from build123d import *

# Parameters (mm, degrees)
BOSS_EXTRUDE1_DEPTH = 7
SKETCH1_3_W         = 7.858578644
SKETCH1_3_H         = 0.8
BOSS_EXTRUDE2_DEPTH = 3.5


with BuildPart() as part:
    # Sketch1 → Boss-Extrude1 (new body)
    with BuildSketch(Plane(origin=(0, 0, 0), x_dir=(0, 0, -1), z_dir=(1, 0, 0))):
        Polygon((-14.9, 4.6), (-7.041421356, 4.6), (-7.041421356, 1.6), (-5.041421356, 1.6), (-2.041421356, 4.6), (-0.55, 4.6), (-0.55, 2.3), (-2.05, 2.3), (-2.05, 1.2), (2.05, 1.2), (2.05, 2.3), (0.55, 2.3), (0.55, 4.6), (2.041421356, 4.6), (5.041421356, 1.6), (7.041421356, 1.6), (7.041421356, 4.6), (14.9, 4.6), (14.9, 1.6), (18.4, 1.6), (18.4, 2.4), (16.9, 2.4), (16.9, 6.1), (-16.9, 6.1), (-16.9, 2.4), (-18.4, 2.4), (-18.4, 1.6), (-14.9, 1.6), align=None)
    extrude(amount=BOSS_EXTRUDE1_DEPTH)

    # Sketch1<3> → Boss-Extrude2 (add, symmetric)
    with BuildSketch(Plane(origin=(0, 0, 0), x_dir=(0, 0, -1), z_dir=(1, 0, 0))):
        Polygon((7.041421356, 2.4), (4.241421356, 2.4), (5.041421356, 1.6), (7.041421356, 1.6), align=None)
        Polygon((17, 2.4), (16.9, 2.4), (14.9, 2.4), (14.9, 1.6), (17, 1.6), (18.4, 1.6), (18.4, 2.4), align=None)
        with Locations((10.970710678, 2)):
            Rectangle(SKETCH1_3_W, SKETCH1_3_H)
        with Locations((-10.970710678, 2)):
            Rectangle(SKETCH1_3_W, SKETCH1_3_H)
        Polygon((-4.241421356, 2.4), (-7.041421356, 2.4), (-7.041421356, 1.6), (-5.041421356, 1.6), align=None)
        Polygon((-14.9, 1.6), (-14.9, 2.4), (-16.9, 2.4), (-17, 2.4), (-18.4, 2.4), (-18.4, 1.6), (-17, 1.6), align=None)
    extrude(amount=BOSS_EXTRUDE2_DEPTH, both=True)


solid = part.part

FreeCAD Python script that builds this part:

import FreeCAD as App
import Part
import Sketcher


def add_polygon(sketch, points):
    """Adds a closed chain of lines whose ends are joined by coincident constraints."""
    first, n = sketch.GeometryCount, len(points)
    for a, b in zip(points, points[1:] + points[:1]):
        sketch.addGeometry(Part.LineSegment(App.Vector(*a, 0), App.Vector(*b, 0)), False)
    for i in range(n):
        sketch.addConstraint(Sketcher.Constraint("Coincident", first + i, 2, first + (i + 1) % n, 1))

doc = App.newDocument("Part")
body = doc.addObject("PartDesign::Body", "Body")

# Sketch on YZ plane
sketch1 = body.newObject("Sketcher::SketchObject", "Sketch")
sketch1.AttachmentSupport = (doc.getObject("YZ_Plane"), [""])
sketch1.MapMode = "FlatFace"
add_polygon(sketch1, [(4.6, 14.9), (4.6, 7), (1.6, 7), (1.6, 5), (4.6, 2), (4.6, 0.6), (2.3, 0.6), (2.3, 2), (1.2, 2), (1.2, -2), (2.3, -2), (2.3, -0.6), (4.6, -0.6), (4.6, -2), (1.6, -5), (1.6, -7), (4.6, -7), (4.6, -14.9), (1.6, -14.9), (1.6, -18.4), (2.4, -18.4), (2.4, -16.9), (6.1, -16.9), (6.1, 16.9), (2.4, 16.9), (2.4, 18.4), (1.6, 18.4), (1.6, 14.9)])  # lines 0-27
sketch1.addConstraint(Sketcher.Constraint("Vertical", 0))
sketch1.addConstraint(Sketcher.Constraint("Horizontal", 1))
sketch1.addConstraint(Sketcher.Constraint("Vertical", 2))
sketch1.addConstraint(Sketcher.Constraint("Vertical", 4))
sketch1.addConstraint(Sketcher.Constraint("Horizontal", 5))
sketch1.addConstraint(Sketcher.Constraint("Vertical", 6))
sketch1.addConstraint(Sketcher.Constraint("Horizontal", 7))
sketch1.addConstraint(Sketcher.Constraint("Vertical", 8))
sketch1.addConstraint(Sketcher.Constraint("Horizontal", 9))
sketch1.addConstraint(Sketcher.Constraint("Vertical", 10))
sketch1.addConstraint(Sketcher.Constraint("Horizontal", 11))
sketch1.addConstraint(Sketcher.Constraint("Vertical", 12))
sketch1.addConstraint(Sketcher.Constraint("Vertical", 14))
sketch1.addConstraint(Sketcher.Constraint("Horizontal", 15))
sketch1.addConstraint(Sketcher.Constraint("Vertical", 16))
sketch1.addConstraint(Sketcher.Constraint("Horizontal", 17))
sketch1.addConstraint(Sketcher.Constraint("Vertical", 18))
sketch1.addConstraint(Sketcher.Constraint("Horizontal", 19))
sketch1.addConstraint(Sketcher.Constraint("Vertical", 20))
sketch1.addConstraint(Sketcher.Constraint("Horizontal", 21))
sketch1.addConstraint(Sketcher.Constraint("Vertical", 22))
sketch1.addConstraint(Sketcher.Constraint("Horizontal", 23))
sketch1.addConstraint(Sketcher.Constraint("Vertical", 24))
sketch1.addConstraint(Sketcher.Constraint("Horizontal", 25))
sketch1.addConstraint(Sketcher.Constraint("Vertical", 26))
sketch1.addConstraint(Sketcher.Constraint("Horizontal", 27))
sketch1.addConstraint(Sketcher.Constraint("Symmetric", 6, 2, 9, 2, -1))
sketch1.addConstraint(Sketcher.Constraint("Symmetric", 4, 2, 11, 2, -1))
sketch1.addConstraint(Sketcher.Constraint("Symmetric", 2, 2, 13, 2, -1))
sketch1.addConstraint(Sketcher.Constraint("Symmetric", 0, 2, 15, 2, -1))
sketch1.addConstraint(Sketcher.Constraint("Symmetric", 20, 2, 23, 2, -1))
sketch1.addConstraint(Sketcher.Constraint("Symmetric", 18, 2, 25, 2, -1))
sketch1.addConstraint(Sketcher.Constraint("Perpendicular", 3, 13))
sketch1.addConstraint(Sketcher.Constraint("Vertical", 0, 2, 3, 2))
sketch1.addConstraint(Sketcher.Constraint("Vertical", 14, 2, 17, 2))
sketch1.addConstraint(Sketcher.Constraint("Equal", 4, 12))
sketch1.addConstraint(Sketcher.Constraint("Equal", 0, 16))
sketch1.addConstraint(Sketcher.Constraint("Equal", 10, 20))
sketch1.addConstraint(Sketcher.Constraint("DistanceX", 1, 2, 1, 1, 3.0))
sketch1.addConstraint(Sketcher.Constraint("DistanceY", 2, 2, 2, 1, 2.0))
sketch1.addConstraint(Sketcher.Constraint("DistanceX", 5, 2, 5, 1, 2.3))
sketch1.addConstraint(Sketcher.Constraint("DistanceX", 7, 2, 7, 1, 1.1))
sketch1.addConstraint(Sketcher.Constraint("DistanceX", 19, 1, 19, 2, 0.8))
sketch1.addConstraint(Sketcher.Constraint("DistanceX", 21, 1, 21, 2, 3.7))
sketch1.addConstraint(Sketcher.Constraint("DistanceY", 6, 1, 6, 2, 1.5))
sketch1.addConstraint(Sketcher.Constraint("DistanceY", 8, 2, 8, 1, 4.1))
sketch1.addConstraint(Sketcher.Constraint("DistanceY", 18, 2, 18, 1, 3.5))
sketch1.addConstraint(Sketcher.Constraint("DistanceY", 22, 1, 22, 2, 33.8))
sketch1.addConstraint(Sketcher.Constraint("DistanceX", -1, 1, 0, 2, 4.6))
sketch1.addConstraint(Sketcher.Constraint("DistanceY", 0, 2, 0, 1, 7.858579))
pad1 = body.newObject("PartDesign::Pad", "Pad")
pad1.Profile = sketch1
pad1.Length = 7

# Sketch on YZ plane
sketch2 = body.newObject("Sketcher::SketchObject", "Sketch001")
sketch2.AttachmentSupport = (doc.getObject("YZ_Plane"), [""])
sketch2.MapMode = "FlatFace"
add_polygon(sketch2, [(2.4, -4.2), (1.6, -5), (1.6, -18.4), (2.4, -18.4)])  # lines 0-3
add_polygon(sketch2, [(1.6, 5), (2.4, 4.2), (2.4, 18.4), (1.6, 18.4)])  # lines 4-7
sketch2.addConstraint(Sketcher.Constraint("Vertical", 1))
sketch2.addConstraint(Sketcher.Constraint("Horizontal", 2))
sketch2.addConstraint(Sketcher.Constraint("Vertical", 3))
sketch2.addConstraint(Sketcher.Constraint("Vertical", 5))
sketch2.addConstraint(Sketcher.Constraint("Horizontal", 6))
sketch2.addConstraint(Sketcher.Constraint("Vertical", 7))
sketch2.addConstraint(Sketcher.Constraint("Symmetric", 3, 2, 4, 2, -1))
sketch2.addConstraint(Sketcher.Constraint("Symmetric", 1, 2, 6, 2, -1))
sketch2.addConstraint(Sketcher.Constraint("Perpendicular", 0, 4))
sketch2.addConstraint(Sketcher.Constraint("Equal", 1, 7))
sketch2.addConstraint(Sketcher.Constraint("DistanceX", 2, 1, 2, 2, 0.8))
sketch2.addConstraint(Sketcher.Constraint("DistanceX", -1, 1, 0, 2, 1.6))
sketch2.addConstraint(Sketcher.Constraint("DistanceY", 1, 2, -1, 1, 18.4))
sketch2.addConstraint(Sketcher.Constraint("DistanceY", 1, 2, 1, 1, 13.358579))
pad2 = body.newObject("PartDesign::Pad", "Pad001")
pad2.Profile = sketch2
pad2.Length = 7
pad2.Midplane = True

doc.recompute()
